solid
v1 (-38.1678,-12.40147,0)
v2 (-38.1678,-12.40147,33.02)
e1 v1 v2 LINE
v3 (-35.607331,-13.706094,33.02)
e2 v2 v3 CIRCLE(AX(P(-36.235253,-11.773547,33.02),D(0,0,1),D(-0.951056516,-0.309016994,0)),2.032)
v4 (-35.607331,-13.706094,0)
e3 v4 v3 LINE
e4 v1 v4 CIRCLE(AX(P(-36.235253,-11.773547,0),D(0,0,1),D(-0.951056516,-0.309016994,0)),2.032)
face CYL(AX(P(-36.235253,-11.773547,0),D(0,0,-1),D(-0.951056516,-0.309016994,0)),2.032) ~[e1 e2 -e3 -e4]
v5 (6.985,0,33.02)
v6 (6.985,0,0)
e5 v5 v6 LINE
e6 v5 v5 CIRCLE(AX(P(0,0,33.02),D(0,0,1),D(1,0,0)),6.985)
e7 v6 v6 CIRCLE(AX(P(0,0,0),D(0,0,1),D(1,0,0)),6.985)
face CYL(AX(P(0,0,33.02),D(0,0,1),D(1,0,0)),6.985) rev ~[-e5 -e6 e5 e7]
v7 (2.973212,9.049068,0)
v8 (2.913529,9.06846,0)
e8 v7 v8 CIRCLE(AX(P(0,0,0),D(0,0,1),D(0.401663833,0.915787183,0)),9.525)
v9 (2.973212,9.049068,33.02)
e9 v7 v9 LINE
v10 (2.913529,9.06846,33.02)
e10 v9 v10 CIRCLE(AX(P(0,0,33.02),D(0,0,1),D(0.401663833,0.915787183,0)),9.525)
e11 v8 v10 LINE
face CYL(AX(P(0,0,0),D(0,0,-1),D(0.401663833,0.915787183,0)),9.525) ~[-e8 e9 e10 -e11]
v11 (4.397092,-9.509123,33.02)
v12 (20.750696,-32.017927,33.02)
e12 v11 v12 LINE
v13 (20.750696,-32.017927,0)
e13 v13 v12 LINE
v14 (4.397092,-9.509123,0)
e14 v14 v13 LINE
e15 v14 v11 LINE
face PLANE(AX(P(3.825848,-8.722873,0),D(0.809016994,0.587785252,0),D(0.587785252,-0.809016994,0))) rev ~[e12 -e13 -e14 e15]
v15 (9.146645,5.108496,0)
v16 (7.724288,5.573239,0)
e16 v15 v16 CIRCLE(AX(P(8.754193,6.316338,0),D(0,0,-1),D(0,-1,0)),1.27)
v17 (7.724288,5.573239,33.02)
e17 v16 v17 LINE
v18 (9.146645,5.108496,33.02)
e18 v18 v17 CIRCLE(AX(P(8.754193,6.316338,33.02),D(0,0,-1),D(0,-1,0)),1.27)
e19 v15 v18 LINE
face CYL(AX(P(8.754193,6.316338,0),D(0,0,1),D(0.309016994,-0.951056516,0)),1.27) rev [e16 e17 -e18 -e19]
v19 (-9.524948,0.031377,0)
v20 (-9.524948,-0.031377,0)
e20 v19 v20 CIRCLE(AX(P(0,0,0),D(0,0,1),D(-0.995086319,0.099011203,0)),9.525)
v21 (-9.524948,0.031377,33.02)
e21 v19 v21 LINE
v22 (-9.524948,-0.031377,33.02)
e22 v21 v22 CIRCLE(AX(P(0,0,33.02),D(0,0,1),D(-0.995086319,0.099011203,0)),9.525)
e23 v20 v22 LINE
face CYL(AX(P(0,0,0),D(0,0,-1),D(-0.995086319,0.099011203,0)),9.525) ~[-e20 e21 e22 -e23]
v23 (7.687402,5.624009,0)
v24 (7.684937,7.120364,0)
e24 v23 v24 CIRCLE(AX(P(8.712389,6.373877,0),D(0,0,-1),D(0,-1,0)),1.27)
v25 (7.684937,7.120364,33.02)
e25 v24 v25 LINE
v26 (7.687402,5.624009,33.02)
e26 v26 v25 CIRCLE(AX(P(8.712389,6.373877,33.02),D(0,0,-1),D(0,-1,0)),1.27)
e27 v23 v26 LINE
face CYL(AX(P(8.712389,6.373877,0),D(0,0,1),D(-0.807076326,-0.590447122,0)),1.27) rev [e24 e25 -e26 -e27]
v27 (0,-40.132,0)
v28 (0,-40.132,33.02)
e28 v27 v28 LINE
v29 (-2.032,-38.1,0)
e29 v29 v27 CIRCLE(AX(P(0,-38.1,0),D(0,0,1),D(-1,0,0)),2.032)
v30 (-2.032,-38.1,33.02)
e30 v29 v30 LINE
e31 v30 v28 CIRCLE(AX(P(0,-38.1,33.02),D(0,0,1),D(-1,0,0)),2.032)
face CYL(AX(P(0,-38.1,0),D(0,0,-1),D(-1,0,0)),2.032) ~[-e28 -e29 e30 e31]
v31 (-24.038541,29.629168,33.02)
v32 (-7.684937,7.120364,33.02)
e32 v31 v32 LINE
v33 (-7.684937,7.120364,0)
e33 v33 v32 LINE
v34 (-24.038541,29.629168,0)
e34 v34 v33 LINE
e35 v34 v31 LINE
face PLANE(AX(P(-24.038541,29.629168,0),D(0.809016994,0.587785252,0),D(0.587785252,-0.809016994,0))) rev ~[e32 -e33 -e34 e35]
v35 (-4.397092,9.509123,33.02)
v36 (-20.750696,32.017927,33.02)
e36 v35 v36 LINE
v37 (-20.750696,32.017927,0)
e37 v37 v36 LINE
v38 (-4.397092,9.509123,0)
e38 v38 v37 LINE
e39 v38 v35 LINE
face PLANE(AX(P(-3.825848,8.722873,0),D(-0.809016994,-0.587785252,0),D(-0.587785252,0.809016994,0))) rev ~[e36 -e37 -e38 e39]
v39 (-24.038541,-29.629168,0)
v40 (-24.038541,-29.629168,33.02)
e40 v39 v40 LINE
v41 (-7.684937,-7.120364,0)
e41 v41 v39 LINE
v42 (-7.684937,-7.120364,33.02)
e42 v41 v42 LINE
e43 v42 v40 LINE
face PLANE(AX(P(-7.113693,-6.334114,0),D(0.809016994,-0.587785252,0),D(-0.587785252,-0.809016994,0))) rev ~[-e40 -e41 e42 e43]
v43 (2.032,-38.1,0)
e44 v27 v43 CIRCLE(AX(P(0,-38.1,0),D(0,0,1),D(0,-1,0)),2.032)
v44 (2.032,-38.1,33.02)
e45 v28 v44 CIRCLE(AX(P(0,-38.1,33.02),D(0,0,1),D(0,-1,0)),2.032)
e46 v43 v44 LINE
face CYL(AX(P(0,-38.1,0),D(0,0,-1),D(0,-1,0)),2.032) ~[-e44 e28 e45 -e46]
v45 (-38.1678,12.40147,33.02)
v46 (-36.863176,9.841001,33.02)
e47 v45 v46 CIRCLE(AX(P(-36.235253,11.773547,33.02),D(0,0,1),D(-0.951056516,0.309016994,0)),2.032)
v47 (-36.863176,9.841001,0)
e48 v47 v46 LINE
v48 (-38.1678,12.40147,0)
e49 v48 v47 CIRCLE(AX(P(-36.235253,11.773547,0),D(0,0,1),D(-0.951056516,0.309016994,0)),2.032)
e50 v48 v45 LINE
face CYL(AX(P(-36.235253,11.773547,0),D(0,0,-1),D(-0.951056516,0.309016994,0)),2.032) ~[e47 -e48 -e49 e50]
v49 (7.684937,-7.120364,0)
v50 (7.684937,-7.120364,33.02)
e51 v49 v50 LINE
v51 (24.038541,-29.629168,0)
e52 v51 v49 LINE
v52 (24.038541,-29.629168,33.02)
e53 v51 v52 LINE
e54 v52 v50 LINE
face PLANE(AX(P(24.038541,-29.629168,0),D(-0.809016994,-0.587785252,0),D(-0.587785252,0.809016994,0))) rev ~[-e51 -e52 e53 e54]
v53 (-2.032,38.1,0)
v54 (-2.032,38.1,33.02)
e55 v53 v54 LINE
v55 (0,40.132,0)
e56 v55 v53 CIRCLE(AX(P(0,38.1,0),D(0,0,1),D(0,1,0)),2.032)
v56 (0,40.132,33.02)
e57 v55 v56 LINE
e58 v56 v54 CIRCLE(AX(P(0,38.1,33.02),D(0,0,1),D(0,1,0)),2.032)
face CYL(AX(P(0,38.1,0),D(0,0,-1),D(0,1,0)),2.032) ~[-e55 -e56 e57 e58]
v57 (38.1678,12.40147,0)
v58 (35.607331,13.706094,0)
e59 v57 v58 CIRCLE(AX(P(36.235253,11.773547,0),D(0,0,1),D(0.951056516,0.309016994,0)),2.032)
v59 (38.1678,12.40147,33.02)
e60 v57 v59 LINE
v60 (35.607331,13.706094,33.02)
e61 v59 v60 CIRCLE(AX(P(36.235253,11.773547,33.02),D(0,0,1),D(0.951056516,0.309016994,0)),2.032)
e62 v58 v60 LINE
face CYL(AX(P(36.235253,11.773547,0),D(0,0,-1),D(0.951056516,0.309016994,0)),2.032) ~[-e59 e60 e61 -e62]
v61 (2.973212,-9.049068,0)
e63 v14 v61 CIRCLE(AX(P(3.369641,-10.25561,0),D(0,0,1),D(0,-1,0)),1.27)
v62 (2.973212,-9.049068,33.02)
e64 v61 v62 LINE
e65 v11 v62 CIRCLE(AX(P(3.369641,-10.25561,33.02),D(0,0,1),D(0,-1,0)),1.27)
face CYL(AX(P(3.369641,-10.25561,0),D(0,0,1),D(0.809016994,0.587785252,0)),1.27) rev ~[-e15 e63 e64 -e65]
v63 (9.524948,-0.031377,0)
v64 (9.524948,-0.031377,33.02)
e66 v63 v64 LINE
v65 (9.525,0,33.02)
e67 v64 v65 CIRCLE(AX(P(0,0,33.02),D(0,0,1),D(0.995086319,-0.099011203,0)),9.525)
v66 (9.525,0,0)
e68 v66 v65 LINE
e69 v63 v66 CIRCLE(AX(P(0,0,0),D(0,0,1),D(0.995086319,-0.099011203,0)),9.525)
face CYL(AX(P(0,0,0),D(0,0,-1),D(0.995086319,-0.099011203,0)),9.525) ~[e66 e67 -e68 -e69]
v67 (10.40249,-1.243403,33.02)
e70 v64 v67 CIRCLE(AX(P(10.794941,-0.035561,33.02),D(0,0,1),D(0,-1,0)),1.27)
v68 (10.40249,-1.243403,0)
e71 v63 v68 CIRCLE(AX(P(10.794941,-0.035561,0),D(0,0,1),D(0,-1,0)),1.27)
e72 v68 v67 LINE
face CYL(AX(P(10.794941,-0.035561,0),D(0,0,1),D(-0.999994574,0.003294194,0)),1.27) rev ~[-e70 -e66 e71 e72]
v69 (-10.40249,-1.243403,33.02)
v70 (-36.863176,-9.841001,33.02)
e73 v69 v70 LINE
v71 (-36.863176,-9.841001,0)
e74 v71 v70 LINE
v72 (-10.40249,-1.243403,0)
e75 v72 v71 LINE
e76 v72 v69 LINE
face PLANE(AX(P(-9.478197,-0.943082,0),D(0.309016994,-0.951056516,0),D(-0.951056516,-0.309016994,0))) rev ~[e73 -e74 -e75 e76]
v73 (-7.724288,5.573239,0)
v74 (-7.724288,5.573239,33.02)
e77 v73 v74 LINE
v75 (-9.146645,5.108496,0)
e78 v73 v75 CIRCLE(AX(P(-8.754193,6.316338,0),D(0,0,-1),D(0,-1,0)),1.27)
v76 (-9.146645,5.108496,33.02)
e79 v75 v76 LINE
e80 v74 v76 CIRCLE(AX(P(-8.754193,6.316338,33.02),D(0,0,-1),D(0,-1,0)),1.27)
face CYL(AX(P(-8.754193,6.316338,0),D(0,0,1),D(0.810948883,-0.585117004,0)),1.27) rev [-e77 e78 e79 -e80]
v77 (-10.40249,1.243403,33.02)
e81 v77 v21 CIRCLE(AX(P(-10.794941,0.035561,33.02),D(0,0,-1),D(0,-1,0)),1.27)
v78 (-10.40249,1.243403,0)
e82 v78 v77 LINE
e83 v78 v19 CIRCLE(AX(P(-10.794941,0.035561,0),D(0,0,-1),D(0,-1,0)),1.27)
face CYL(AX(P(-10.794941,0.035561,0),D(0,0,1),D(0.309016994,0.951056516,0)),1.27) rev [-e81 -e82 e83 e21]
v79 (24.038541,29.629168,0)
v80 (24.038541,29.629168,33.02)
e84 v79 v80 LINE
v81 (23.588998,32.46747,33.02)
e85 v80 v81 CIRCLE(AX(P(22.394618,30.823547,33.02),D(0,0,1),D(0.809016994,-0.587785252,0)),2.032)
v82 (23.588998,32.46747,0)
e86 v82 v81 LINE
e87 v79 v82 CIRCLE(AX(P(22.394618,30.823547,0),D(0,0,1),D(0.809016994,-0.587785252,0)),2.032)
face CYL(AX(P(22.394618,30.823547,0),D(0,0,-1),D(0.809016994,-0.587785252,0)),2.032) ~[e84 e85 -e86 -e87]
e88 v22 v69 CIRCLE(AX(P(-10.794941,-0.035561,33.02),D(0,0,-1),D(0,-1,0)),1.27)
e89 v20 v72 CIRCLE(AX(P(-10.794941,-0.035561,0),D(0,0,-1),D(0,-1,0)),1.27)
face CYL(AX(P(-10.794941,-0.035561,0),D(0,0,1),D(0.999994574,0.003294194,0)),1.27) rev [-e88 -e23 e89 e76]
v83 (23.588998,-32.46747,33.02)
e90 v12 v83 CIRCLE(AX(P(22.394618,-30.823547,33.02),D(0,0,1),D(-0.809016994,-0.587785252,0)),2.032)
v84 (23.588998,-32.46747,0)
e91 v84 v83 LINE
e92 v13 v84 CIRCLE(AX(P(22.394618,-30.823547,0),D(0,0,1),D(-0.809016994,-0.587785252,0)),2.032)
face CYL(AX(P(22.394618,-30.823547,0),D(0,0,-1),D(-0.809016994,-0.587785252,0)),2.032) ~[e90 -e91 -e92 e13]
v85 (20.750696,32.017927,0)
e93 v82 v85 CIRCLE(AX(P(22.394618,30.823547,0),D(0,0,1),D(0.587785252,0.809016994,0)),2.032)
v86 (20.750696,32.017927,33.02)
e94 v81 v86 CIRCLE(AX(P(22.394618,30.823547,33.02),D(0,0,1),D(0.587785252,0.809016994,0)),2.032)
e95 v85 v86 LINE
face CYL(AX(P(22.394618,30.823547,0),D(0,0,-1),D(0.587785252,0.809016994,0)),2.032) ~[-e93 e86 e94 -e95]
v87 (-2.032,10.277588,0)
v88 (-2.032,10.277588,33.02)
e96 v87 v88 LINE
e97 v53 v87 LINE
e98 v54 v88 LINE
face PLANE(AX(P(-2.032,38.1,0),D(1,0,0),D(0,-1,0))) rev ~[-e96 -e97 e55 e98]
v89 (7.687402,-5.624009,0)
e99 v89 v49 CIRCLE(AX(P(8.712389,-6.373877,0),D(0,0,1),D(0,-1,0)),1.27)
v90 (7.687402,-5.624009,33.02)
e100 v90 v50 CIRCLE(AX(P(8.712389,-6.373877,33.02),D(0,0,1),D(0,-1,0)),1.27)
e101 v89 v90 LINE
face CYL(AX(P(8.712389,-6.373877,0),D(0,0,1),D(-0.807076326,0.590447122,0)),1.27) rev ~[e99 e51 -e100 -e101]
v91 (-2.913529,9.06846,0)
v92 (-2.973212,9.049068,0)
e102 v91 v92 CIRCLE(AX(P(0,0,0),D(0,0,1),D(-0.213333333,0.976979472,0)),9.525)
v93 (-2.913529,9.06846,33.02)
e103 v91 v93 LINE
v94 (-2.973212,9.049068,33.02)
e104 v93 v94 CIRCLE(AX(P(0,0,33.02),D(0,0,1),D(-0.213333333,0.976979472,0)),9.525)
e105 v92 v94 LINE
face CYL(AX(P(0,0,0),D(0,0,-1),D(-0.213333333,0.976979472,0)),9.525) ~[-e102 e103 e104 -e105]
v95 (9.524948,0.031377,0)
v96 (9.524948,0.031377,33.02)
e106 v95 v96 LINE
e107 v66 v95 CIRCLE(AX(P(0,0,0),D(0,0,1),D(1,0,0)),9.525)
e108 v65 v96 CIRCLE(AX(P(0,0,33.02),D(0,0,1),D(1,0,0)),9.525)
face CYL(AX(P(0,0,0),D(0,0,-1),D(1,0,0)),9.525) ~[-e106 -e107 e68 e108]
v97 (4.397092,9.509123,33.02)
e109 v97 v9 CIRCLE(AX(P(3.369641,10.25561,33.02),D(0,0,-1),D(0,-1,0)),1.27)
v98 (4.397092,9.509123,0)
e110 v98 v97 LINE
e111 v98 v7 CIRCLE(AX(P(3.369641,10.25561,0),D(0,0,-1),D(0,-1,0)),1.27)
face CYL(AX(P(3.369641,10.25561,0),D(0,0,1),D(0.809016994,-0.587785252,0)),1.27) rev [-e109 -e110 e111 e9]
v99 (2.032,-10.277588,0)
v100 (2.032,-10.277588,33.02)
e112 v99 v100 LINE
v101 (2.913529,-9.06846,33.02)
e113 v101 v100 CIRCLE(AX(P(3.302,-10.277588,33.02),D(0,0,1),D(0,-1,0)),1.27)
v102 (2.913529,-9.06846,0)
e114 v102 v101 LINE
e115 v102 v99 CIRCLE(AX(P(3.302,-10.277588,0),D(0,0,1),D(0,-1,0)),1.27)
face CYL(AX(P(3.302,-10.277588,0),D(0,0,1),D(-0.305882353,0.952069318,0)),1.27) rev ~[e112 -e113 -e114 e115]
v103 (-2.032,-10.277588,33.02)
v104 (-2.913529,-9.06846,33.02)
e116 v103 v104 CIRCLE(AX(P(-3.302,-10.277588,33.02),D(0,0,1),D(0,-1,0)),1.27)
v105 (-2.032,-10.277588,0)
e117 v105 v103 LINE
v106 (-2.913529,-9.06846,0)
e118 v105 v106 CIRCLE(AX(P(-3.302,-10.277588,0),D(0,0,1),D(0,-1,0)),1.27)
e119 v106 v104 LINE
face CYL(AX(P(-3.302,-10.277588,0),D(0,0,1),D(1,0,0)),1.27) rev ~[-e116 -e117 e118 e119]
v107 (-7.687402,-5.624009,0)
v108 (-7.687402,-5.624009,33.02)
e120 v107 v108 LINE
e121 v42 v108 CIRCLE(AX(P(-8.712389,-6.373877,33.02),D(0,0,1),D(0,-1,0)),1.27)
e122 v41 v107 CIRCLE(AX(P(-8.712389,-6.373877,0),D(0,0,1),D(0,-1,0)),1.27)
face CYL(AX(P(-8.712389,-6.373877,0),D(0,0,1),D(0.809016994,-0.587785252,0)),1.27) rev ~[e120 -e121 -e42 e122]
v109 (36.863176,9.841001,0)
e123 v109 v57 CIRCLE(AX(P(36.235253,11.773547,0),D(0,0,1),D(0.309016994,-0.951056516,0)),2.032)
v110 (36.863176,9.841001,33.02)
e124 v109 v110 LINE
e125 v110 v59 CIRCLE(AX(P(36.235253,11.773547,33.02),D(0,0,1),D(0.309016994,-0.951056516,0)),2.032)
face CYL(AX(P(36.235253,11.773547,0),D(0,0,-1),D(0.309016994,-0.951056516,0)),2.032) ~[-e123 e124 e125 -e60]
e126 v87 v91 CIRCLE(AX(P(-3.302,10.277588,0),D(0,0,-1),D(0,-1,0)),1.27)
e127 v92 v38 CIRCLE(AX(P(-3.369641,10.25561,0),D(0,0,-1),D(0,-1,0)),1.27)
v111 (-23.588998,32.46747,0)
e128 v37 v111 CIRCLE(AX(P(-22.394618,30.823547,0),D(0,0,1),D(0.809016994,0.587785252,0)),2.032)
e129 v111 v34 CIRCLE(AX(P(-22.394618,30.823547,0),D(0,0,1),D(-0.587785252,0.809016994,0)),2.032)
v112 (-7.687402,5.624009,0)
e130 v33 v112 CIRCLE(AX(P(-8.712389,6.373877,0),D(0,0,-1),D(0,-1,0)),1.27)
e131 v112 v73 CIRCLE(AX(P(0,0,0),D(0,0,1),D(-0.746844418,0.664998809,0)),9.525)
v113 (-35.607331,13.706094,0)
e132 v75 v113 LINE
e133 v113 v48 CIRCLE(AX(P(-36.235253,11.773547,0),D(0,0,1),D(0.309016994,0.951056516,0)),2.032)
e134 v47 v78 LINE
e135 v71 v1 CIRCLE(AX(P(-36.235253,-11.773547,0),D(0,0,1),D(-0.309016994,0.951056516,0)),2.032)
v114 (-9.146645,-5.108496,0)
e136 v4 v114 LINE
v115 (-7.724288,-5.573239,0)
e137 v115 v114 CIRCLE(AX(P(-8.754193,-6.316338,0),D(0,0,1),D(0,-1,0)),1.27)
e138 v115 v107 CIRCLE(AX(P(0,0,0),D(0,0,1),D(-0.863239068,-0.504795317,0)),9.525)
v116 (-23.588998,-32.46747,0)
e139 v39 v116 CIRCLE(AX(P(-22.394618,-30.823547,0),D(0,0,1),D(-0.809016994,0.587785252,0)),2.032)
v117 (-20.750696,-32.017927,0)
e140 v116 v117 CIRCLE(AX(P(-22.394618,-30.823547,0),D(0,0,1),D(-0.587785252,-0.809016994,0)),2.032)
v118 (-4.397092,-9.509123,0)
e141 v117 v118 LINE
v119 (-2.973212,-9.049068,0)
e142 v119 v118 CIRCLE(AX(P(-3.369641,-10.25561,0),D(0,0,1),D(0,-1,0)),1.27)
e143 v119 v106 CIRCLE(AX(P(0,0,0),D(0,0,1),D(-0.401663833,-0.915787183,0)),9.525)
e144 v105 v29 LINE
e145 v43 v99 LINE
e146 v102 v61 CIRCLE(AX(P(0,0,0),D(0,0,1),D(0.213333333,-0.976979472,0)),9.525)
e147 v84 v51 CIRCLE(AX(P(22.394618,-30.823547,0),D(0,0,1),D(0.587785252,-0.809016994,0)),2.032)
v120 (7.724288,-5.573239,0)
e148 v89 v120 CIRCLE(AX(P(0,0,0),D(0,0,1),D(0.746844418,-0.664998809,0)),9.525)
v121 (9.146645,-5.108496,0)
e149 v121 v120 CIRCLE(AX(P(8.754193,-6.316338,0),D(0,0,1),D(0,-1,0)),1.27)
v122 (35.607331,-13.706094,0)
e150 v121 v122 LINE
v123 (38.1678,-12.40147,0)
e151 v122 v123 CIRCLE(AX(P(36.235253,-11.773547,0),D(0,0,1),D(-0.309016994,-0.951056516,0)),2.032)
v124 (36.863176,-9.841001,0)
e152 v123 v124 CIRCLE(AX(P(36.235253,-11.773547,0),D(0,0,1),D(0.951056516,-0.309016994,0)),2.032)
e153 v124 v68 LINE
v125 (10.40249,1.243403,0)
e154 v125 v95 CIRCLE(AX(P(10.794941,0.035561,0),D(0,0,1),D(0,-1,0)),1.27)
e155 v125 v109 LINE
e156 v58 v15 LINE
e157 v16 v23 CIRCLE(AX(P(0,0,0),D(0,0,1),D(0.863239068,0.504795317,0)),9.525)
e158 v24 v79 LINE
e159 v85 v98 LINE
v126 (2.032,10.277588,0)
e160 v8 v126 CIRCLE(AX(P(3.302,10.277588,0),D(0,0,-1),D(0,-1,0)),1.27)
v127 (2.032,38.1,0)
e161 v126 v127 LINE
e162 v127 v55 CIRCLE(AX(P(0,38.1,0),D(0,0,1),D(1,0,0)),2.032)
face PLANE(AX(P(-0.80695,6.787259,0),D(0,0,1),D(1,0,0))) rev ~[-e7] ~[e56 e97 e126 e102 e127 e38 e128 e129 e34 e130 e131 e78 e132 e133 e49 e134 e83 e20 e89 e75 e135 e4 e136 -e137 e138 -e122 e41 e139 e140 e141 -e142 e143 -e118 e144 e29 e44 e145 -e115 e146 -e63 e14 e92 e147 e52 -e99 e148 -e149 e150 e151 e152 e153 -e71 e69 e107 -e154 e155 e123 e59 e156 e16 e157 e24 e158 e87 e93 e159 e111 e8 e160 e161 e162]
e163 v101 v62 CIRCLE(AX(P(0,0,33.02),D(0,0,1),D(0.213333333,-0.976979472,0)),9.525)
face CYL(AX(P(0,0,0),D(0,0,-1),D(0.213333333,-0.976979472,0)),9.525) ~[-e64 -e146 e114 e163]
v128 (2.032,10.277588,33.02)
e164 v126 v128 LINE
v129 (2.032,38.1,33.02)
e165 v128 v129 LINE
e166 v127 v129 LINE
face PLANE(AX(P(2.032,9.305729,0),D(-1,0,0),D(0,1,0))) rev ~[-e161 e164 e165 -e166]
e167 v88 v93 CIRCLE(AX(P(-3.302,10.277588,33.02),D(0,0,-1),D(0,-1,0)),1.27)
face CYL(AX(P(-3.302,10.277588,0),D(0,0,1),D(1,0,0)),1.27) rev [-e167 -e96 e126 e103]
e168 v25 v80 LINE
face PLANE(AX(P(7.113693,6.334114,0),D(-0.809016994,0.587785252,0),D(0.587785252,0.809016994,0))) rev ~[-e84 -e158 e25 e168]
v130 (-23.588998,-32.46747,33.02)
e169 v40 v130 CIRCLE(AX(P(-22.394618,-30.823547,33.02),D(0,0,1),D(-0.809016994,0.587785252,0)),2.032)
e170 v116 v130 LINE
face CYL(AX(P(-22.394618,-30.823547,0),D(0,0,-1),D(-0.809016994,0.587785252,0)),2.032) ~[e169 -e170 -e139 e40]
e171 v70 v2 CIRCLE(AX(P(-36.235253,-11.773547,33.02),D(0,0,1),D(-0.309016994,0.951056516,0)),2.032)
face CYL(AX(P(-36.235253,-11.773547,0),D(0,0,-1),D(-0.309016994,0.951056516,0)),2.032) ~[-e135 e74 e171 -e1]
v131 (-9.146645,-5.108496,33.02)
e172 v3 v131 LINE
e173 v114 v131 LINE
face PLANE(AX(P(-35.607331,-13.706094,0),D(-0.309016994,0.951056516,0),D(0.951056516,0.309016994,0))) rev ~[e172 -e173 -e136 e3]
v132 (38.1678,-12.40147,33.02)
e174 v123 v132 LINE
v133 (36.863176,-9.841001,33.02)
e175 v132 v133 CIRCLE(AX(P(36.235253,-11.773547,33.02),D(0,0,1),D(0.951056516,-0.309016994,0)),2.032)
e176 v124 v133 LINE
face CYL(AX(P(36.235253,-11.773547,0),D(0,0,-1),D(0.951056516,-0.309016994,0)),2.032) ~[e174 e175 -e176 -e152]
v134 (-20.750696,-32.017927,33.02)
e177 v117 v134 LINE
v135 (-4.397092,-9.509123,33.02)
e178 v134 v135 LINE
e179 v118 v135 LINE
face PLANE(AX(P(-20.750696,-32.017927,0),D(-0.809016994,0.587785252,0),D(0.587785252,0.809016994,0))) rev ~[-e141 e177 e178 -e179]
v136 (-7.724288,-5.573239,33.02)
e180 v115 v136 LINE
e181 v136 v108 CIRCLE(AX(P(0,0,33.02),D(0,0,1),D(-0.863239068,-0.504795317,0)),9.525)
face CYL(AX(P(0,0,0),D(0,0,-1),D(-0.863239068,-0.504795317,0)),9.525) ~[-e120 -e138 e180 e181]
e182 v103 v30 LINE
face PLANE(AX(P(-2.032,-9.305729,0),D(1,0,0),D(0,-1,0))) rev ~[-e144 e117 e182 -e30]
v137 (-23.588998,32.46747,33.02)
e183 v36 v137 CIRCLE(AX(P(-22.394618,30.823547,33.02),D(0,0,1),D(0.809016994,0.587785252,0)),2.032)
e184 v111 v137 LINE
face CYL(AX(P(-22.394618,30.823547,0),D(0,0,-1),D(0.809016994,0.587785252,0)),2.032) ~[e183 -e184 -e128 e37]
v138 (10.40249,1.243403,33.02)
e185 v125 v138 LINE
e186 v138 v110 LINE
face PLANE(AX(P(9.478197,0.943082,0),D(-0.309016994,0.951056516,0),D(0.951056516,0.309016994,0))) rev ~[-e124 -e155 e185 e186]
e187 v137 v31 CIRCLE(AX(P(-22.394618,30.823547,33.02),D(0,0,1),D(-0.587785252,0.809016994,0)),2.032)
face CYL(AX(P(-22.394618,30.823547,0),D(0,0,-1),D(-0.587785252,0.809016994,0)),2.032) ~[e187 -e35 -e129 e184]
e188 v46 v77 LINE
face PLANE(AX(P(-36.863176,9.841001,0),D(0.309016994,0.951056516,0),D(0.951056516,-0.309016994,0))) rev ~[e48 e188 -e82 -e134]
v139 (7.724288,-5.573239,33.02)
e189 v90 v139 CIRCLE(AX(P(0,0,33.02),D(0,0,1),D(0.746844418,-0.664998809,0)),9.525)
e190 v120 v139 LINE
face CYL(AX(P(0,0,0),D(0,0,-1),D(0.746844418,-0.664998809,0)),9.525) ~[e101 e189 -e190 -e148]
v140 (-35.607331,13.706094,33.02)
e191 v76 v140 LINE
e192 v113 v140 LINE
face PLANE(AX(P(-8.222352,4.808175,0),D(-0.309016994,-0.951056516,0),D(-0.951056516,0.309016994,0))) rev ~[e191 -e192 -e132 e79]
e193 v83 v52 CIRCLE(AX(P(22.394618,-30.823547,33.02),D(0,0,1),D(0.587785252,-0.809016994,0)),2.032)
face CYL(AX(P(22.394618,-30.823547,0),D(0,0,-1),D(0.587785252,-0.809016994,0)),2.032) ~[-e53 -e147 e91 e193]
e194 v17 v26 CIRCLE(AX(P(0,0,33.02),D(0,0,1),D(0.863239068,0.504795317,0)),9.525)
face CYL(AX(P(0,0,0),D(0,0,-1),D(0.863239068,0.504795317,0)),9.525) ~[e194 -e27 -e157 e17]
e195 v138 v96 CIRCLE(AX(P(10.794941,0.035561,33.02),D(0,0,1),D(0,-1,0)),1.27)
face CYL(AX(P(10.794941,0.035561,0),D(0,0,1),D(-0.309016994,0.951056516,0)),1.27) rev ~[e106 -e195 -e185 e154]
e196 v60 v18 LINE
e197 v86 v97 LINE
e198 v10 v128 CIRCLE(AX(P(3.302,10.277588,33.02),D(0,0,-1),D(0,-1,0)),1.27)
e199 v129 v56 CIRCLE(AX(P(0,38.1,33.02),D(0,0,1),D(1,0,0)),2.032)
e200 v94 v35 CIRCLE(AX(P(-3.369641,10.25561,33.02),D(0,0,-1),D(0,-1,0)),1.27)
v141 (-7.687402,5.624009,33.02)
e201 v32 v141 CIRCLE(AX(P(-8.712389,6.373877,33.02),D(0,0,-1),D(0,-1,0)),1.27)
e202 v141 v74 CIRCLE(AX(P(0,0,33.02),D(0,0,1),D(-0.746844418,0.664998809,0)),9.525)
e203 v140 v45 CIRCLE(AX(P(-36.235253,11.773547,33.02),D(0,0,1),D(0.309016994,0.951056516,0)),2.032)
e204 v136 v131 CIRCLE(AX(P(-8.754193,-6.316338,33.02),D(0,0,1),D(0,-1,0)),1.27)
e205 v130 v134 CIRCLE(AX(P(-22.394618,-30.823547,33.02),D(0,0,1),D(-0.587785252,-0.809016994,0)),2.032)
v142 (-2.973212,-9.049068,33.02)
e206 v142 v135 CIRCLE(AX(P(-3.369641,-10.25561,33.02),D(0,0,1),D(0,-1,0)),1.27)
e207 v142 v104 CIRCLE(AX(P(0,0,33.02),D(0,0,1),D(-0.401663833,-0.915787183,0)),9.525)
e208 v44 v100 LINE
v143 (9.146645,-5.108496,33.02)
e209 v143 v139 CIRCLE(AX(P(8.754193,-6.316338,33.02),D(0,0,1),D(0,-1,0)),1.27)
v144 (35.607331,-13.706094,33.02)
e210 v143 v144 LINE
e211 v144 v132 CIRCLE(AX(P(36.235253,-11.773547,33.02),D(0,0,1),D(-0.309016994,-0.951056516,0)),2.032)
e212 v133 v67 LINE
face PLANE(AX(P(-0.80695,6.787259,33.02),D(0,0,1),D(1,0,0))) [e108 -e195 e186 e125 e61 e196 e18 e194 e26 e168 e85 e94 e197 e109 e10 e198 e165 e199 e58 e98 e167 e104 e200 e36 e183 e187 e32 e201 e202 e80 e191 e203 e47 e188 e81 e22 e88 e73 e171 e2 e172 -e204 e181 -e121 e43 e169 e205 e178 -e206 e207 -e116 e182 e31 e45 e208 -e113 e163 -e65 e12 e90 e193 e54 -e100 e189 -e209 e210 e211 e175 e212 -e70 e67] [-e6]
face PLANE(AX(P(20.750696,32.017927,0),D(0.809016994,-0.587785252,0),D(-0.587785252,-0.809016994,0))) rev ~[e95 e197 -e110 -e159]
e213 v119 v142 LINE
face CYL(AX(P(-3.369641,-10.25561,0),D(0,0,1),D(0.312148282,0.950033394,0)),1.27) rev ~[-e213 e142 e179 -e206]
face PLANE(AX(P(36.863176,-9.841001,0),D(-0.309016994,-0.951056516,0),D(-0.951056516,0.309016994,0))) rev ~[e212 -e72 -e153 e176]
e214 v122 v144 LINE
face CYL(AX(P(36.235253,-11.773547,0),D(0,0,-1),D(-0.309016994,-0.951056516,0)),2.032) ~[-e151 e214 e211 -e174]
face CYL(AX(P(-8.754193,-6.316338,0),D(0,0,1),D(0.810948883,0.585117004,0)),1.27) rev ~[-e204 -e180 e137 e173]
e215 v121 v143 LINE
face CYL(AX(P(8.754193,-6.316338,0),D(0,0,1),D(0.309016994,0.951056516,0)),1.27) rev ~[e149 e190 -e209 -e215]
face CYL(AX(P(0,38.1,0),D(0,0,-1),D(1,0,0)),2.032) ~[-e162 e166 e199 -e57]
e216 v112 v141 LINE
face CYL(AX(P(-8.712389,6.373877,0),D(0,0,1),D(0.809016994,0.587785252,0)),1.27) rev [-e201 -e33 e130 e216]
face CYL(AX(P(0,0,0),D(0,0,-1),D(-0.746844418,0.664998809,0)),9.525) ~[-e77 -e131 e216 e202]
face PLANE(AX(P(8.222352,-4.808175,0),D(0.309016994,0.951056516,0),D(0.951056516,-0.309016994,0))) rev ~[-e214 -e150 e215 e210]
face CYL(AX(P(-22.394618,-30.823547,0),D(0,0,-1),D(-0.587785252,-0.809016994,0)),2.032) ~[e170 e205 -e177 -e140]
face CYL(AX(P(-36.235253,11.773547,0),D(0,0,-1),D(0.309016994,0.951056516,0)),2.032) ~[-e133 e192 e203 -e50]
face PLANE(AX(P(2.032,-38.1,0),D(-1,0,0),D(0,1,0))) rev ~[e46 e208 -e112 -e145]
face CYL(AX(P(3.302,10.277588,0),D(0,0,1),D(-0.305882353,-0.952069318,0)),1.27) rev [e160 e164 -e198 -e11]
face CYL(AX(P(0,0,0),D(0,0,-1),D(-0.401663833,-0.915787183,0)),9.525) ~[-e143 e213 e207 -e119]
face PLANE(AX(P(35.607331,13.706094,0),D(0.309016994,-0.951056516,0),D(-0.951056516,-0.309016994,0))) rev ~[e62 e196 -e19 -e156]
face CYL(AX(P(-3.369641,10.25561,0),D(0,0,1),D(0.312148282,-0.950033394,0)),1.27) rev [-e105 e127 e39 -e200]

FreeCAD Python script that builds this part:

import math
import FreeCAD as App
import Part
import Sketcher

V = App.Vector
Q = App.Units.Quantity


def edges_at(feature, points):
    """Names of the edges that pass closest to the given points."""
    edges = feature.Shape.Edges
    near = lambda p: min(range(len(edges)), key=lambda i: edges[i].distToShape(Part.Vertex(*p))[0])
    return sorted({f"Edge{near(p) + 1}" for p in points})

doc = App.newDocument("Part")
body = doc.addObject("PartDesign::Body", "Body")

# Sketch on XY plane
sketch1 = body.newObject("Sketcher::SketchObject", "Sketch")
sketch1.AttachmentSupport = (doc.getObject("XY_Plane"), [""])
sketch1.MapMode = "FlatFace"
sketch1.addGeometry([
    Part.LineSegment(V(35.6, 13.7, 0), V(8.2, 4.8, 0)),  # 0
    Part.ArcOfCircle(Part.Circle(V(0, 0, 0), V(0, 0, 1), 9.5), math.radians(30.32), math.radians(41.68)),  # 1
    Part.LineSegment(V(7.1, 6.3, 0), V(24, 29.6, 0)),  # 2
    Part.ArcOfCircle(Part.Circle(V(22.4, 30.8, 0), V(0, 0, 1), 2), math.radians(-36), math.radians(54)),  # 3
    Part.ArcOfCircle(Part.Circle(V(22.4, 30.8, 0), V(0, 0, 1), 2), math.radians(54), math.radians(144)),  # 4
    Part.LineSegment(V(20.8, 32, 0), V(3.8, 8.7, 0)),  # 5
    Part.ArcOfCircle(Part.Circle(V(0, 0, 0), V(0, 0, 1), 9.5), math.radians(66.32), math.radians(77.68)),  # 6
    Part.LineSegment(V(2, 9.3, 0), V(2, 38.1, 0)),  # 7
    Part.ArcOfCircle(Part.Circle(V(0, 38.1, 0), V(0, 0, 1), 2), math.radians(0), math.radians(90)),  # 8
    Part.ArcOfCircle(Part.Circle(V(0, 38.1, 0), V(0, 0, 1), 2), math.radians(90), math.radians(180)),  # 9
    Part.LineSegment(V(-2, 38.1, 0), V(-2, 9.3, 0)),  # 10
    Part.ArcOfCircle(Part.Circle(V(0, 0, 0), V(0, 0, 1), 9.5), math.radians(102.32), math.radians(113.68)),  # 11
    Part.LineSegment(V(-3.8, 8.7, 0), V(-20.8, 32, 0)),  # 12
    Part.ArcOfCircle(Part.Circle(V(-22.4, 30.8, 0), V(0, 0, 1), 2), math.radians(36), math.radians(126)),  # 13
    Part.ArcOfCircle(Part.Circle(V(-22.4, 30.8, 0), V(0, 0, 1), 2), math.radians(126), math.radians(216)),  # 14
    Part.LineSegment(V(-24, 29.6, 0), V(-7.1, 6.3, 0)),  # 15
    Part.ArcOfCircle(Part.Circle(V(0, 0, 0), V(0, 0, 1), 9.5), math.radians(138.32), math.radians(149.68)),  # 16
    Part.LineSegment(V(-8.2, 4.8, 0), V(-35.6, 13.7, 0)),  # 17
    Part.ArcOfCircle(Part.Circle(V(-36.2, 11.8, 0), V(0, 0, 1), 2), math.radians(72), math.radians(162)),  # 18
    Part.ArcOfCircle(Part.Circle(V(-36.2, 11.8, 0), V(0, 0, 1), 2), math.radians(162), math.radians(252)),  # 19
    Part.LineSegment(V(-36.9, 9.8, 0), V(-9.5, 0.9, 0)),  # 20
    Part.ArcOfCircle(Part.Circle(V(0, 0, 0), V(0, 0, 1), 9.5), math.radians(174.32), math.radians(185.68)),  # 21
    Part.LineSegment(V(-9.5, -0.9, 0), V(-36.9, -9.8, 0)),  # 22
    Part.ArcOfCircle(Part.Circle(V(-36.2, -11.8, 0), V(0, 0, 1), 2), math.radians(108), math.radians(198)),  # 23
    Part.ArcOfCircle(Part.Circle(V(-36.2, -11.8, 0), V(0, 0, 1), 2), math.radians(-162), math.radians(-72)),  # 24
    Part.LineSegment(V(-35.6, -13.7, 0), V(-8.2, -4.8, 0)),  # 25
    Part.ArcOfCircle(Part.Circle(V(0, 0, 0), V(0, 0, 1), 9.5), math.radians(-149.68), math.radians(-138.32)),  # 26
    Part.LineSegment(V(-7.1, -6.3, 0), V(-24, -29.6, 0)),  # 27
    Part.ArcOfCircle(Part.Circle(V(-22.4, -30.8, 0), V(0, 0, 1), 2), math.radians(144), math.radians(234)),  # 28
    Part.ArcOfCircle(Part.Circle(V(-22.4, -30.8, 0), V(0, 0, 1), 2), math.radians(-126), math.radians(-36)),  # 29
    Part.LineSegment(V(-20.8, -32, 0), V(-3.8, -8.7, 0)),  # 30
    Part.ArcOfCircle(Part.Circle(V(0, 0, 0), V(0, 0, 1), 9.5), math.radians(-113.68), math.radians(-102.32)),  # 31
    Part.LineSegment(V(-2, -9.3, 0), V(-2, -38.1, 0)),  # 32
    Part.ArcOfCircle(Part.Circle(V(0, -38.1, 0), V(0, 0, 1), 2), math.radians(180), math.radians(270)),  # 33
    Part.ArcOfCircle(Part.Circle(V(0, -38.1, 0), V(0, 0, 1), 2), math.radians(-90), math.radians(0)),  # 34
    Part.LineSegment(V(2, -38.1, 0), V(2, -9.3, 0)),  # 35
    Part.ArcOfCircle(Part.Circle(V(0, 0, 0), V(0, 0, 1), 9.5), math.radians(-77.68), math.radians(-66.32)),  # 36
    Part.LineSegment(V(3.8, -8.7, 0), V(20.8, -32, 0)),  # 37
    Part.ArcOfCircle(Part.Circle(V(22.4, -30.8, 0), V(0, 0, 1), 2), math.radians(-144), math.radians(-54)),  # 38
    Part.ArcOfCircle(Part.Circle(V(22.4, -30.8, 0), V(0, 0, 1), 2), math.radians(-54), math.radians(36)),  # 39
    Part.LineSegment(V(24, -29.6, 0), V(7.1, -6.3, 0)),  # 40
    Part.ArcOfCircle(Part.Circle(V(0, 0, 0), V(0, 0, 1), 9.5), math.radians(-41.68), math.radians(-30.32)),  # 41
    Part.LineSegment(V(8.2, -4.8, 0), V(35.6, -13.7, 0)),  # 42
    Part.ArcOfCircle(Part.Circle(V(36.2, -11.8, 0), V(0, 0, 1), 2), math.radians(-108), math.radians(-18)),  # 43
    Part.ArcOfCircle(Part.Circle(V(36.2, -11.8, 0), V(0, 0, 1), 2), math.radians(-18), math.radians(72)),  # 44
    Part.LineSegment(V(36.9, -9.8, 0), V(9.5, -0.9, 0)),  # 45
    Part.ArcOfCircle(Part.Circle(V(0, 0, 0), V(0, 0, 1), 9.5), math.radians(-5.68), math.radians(0)),  # 46
    Part.ArcOfCircle(Part.Circle(V(0, 0, 0), V(0, 0, 1), 9.5), math.radians(0), math.radians(5.68)),  # 47
    Part.LineSegment(V(9.5, 0.9, 0), V(36.9, 9.8, 0)),  # 48
    Part.ArcOfCircle(Part.Circle(V(36.2, 11.8, 0), V(0, 0, 1), 2), math.radians(-72), math.radians(18)),  # 49
    Part.ArcOfCircle(Part.Circle(V(36.2, 11.8, 0), V(0, 0, 1), 2), math.radians(18), math.radians(108)),  # 50
    Part.LineSegment(V(2, 2.8, 0), V(5.3, 3.9, 0)),  # 51
    Part.LineSegment(V(5.3, 3.9, 0), V(3.3, 1.1, 0)),  # 52
    Part.LineSegment(V(3.3, 1.1, 0), V(6.6, 0, 0)),  # 53
    Part.LineSegment(V(6.6, 0, 0), V(3.3, -1.1, 0)),  # 54
    Part.LineSegment(V(3.3, -1.1, 0), V(5.3, -3.9, 0)),  # 55
    Part.LineSegment(V(5.3, -3.9, 0), V(2, -2.8, 0)),  # 56
    Part.LineSegment(V(2, -2.8, 0), V(2, -6.3, 0)),  # 57
    Part.LineSegment(V(2, -6.3, 0), V(0, -3.5, 0)),  # 58
    Part.LineSegment(V(0, -3.5, 0), V(-2, -6.3, 0)),  # 59
    Part.LineSegment(V(-2, -6.3, 0), V(-2, -2.8, 0)),  # 60
    Part.LineSegment(V(-2, -2.8, 0), V(-5.3, -3.9, 0)),  # 61
    Part.LineSegment(V(-5.3, -3.9, 0), V(-3.3, -1.1, 0)),  # 62
    Part.LineSegment(V(-3.3, -1.1, 0), V(-6.6, 0, 0)),  # 63
    Part.LineSegment(V(-6.6, 0, 0), V(-3.3, 1.1, 0)),  # 64
    Part.LineSegment(V(-3.3, 1.1, 0), V(-5.3, 3.9, 0)),  # 65
    Part.LineSegment(V(-5.3, 3.9, 0), V(-2, 2.8, 0)),  # 66
    Part.LineSegment(V(-2, 2.8, 0), V(-2, 6.3, 0)),  # 67
    Part.LineSegment(V(-2, 6.3, 0), V(0, 3.5, 0)),  # 68
    Part.LineSegment(V(0, 3.5, 0), V(2, 6.3, 0)),  # 69
    Part.LineSegment(V(2, 6.3, 0), V(2, 2.8, 0)),  # 70
], False)
sketch1.addConstraint([
    Sketcher.Constraint("Coincident", 0, 2, 1, 1),
    Sketcher.Constraint("Coincident", 1, 2, 2, 1),
    Sketcher.Constraint("Tangent", 2, 2, 3, 1),
    Sketcher.Constraint("Tangent", 3, 2, 4, 1),
    Sketcher.Constraint("Tangent", 4, 2, 5, 1),
    Sketcher.Constraint("Coincident", 5, 2, 6, 1),
    Sketcher.Constraint("Coincident", 6, 2, 7, 1),
    Sketcher.Constraint("Tangent", 7, 2, 8, 1),
    Sketcher.Constraint("Tangent", 8, 2, 9, 1),
    Sketcher.Constraint("Tangent", 9, 2, 10, 1),
    Sketcher.Constraint("Coincident", 10, 2, 11, 1),
    Sketcher.Constraint("Coincident", 11, 2, 12, 1),
    Sketcher.Constraint("Tangent", 12, 2, 13, 1),
    Sketcher.Constraint("Tangent", 13, 2, 14, 1),
    Sketcher.Constraint("Tangent", 14, 2, 15, 1),
    Sketcher.Constraint("Coincident", 15, 2, 16, 1),
    Sketcher.Constraint("Coincident", 16, 2, 17, 1),
    Sketcher.Constraint("Tangent", 17, 2, 18, 1),
    Sketcher.Constraint("Tangent", 18, 2, 19, 1),
    Sketcher.Constraint("Tangent", 19, 2, 20, 1),
    Sketcher.Constraint("Coincident", 20, 2, 21, 1),
    Sketcher.Constraint("Coincident", 21, 2, 22, 1),
    Sketcher.Constraint("Tangent", 22, 2, 23, 1),
    Sketcher.Constraint("Tangent", 23, 2, 24, 1),
    Sketcher.Constraint("Tangent", 24, 2, 25, 1),
    Sketcher.Constraint("Coincident", 25, 2, 26, 1),
    Sketcher.Constraint("Coincident", 26, 2, 27, 1),
    Sketcher.Constraint("Tangent", 27, 2, 28, 1),
    Sketcher.Constraint("Tangent", 28, 2, 29, 1),
    Sketcher.Constraint("Tangent", 29, 2, 30, 1),
    Sketcher.Constraint("Coincident", 30, 2, 31, 1),
    Sketcher.Constraint("Coincident", 31, 2, 32, 1),
    Sketcher.Constraint("Tangent", 32, 2, 33, 1),
    Sketcher.Constraint("Tangent", 33, 2, 34, 1),
    Sketcher.Constraint("Tangent", 34, 2, 35, 1),
    Sketcher.Constraint("Coincident", 35, 2, 36, 1),
    Sketcher.Constraint("Coincident", 36, 2, 37, 1),
    Sketcher.Constraint("Tangent", 37, 2, 38, 1),
    Sketcher.Constraint("Tangent", 38, 2, 39, 1),
    Sketcher.Constraint("Tangent", 39, 2, 40, 1),
    Sketcher.Constraint("Coincident", 40, 2, 41, 1),
    Sketcher.Constraint("Coincident", 41, 2, 42, 1),
    Sketcher.Constraint("Tangent", 42, 2, 43, 1),
    Sketcher.Constraint("Tangent", 43, 2, 44, 1),
    Sketcher.Constraint("Tangent", 44, 2, 45, 1),
    Sketcher.Constraint("Coincident", 45, 2, 46, 1),
    Sketcher.Constraint("Tangent", 46, 2, 47, 1),
    Sketcher.Constraint("Coincident", 47, 2, 48, 1),
    Sketcher.Constraint("Tangent", 48, 2, 49, 1),
    Sketcher.Constraint("Tangent", 49, 2, 50, 1),
    Sketcher.Constraint("Tangent", 50, 2, 0, 1),
    Sketcher.Constraint("Coincident", 51, 2, 52, 1),
    Sketcher.Constraint("Coincident", 52, 2, 53, 1),
    Sketcher.Constraint("Coincident", 53, 2, 54, 1),
    Sketcher.Constraint("Coincident", 54, 2, 55, 1),
    Sketcher.Constraint("Coincident", 55, 2, 56, 1),
    Sketcher.Constraint("Coincident", 56, 2, 57, 1),
    Sketcher.Constraint("Coincident", 57, 2, 58, 1),
    Sketcher.Constraint("Coincident", 58, 2, 59, 1),
    Sketcher.Constraint("Coincident", 59, 2, 60, 1),
    Sketcher.Constraint("Coincident", 60, 2, 61, 1),
    Sketcher.Constraint("Coincident", 61, 2, 62, 1),
    Sketcher.Constraint("Coincident", 62, 2, 63, 1),
    Sketcher.Constraint("Coincident", 63, 2, 64, 1),
    Sketcher.Constraint("Coincident", 64, 2, 65, 1),
    Sketcher.Constraint("Coincident", 65, 2, 66, 1),
    Sketcher.Constraint("Coincident", 66, 2, 67, 1),
    Sketcher.Constraint("Coincident", 67, 2, 68, 1),
    Sketcher.Constraint("Coincident", 68, 2, 69, 1),
    Sketcher.Constraint("Coincident", 69, 2, 70, 1),
    Sketcher.Constraint("Coincident", 70, 2, 51, 1),
    Sketcher.Constraint("Vertical", 7),
    Sketcher.Constraint("Vertical", 10),
    Sketcher.Constraint("Vertical", 32),
    Sketcher.Constraint("Vertical", 35),
    Sketcher.Constraint("Vertical", 57),
    Sketcher.Constraint("Vertical", 60),
    Sketcher.Constraint("Vertical", 67),
    Sketcher.Constraint("Vertical", 70),
    Sketcher.Constraint("Coincident", 1, 3, -1, 1),
    Sketcher.Constraint("Coincident", 6, 3, -1, 1),
    Sketcher.Constraint("Coincident", 11, 3, -1, 1),
    Sketcher.Constraint("Coincident", 16, 3, -1, 1),
    Sketcher.Constraint("Coincident", 21, 3, -1, 1),
    Sketcher.Constraint("Coincident", 26, 3, -1, 1),
    Sketcher.Constraint("Coincident", 31, 3, -1, 1),
    Sketcher.Constraint("Coincident", 36, 3, -1, 1),
    Sketcher.Constraint("Coincident", 41, 3, -1, 1),
    Sketcher.Constraint("Coincident", 46, 3, -1, 1),
    Sketcher.Constraint("Equal", 3, 4),
    Sketcher.Constraint("Equal", 1, 6),
    Sketcher.Constraint("Equal", 4, 8),
    Sketcher.Constraint("Equal", 8, 9),
    Sketcher.Constraint("Equal", 6, 11),
    Sketcher.Constraint("Equal", 9, 13),
    Sketcher.Constraint("Equal", 13, 14),
    Sketcher.Constraint("Equal", 11, 16),
    Sketcher.Constraint("Equal", 14, 18),
    Sketcher.Constraint("Equal", 18, 19),
    Sketcher.Constraint("Equal", 16, 21),
    Sketcher.Constraint("Equal", 19, 23),
    Sketcher.Constraint("Equal", 23, 24),
    Sketcher.Constraint("Equal", 21, 26),
    Sketcher.Constraint("Equal", 24, 28),
    Sketcher.Constraint("Equal", 28, 29),
    Sketcher.Constraint("Equal", 26, 31),
    Sketcher.Constraint("Equal", 29, 33),
    Sketcher.Constraint("Equal", 33, 34),
    Sketcher.Constraint("Equal", 31, 36),
    Sketcher.Constraint("Equal", 34, 38),
    Sketcher.Constraint("Equal", 38, 39),
    Sketcher.Constraint("Equal", 36, 41),
    Sketcher.Constraint("Equal", 39, 43),
    Sketcher.Constraint("Equal", 43, 44),
    Sketcher.Constraint("Equal", 41, 46),
    Sketcher.Constraint("Equal", 46, 47),
    Sketcher.Constraint("Equal", 44, 49),
    Sketcher.Constraint("Equal", 49, 50),
    Sketcher.Constraint("Symmetric", 3, 3, 28, 3, -1, 1),
    Sketcher.Constraint("Symmetric", 8, 3, 33, 3, -1, 1),
    Sketcher.Constraint("Symmetric", 13, 3, 38, 3, -1, 1),
    Sketcher.Constraint("Symmetric", 18, 3, 43, 3, -1, 1),
    Sketcher.Constraint("Symmetric", 23, 3, 49, 3, -1, 1),
    Sketcher.Constraint("Symmetric", 51, 2, 61, 2, -1, 1),
    Sketcher.Constraint("Symmetric", 52, 2, 62, 2, -1, 1),
    Sketcher.Constraint("Symmetric", 53, 2, 63, 2, -1, 1),
    Sketcher.Constraint("Symmetric", 54, 2, 64, 2, -1, 1),
    Sketcher.Constraint("Symmetric", 55, 2, 65, 2, -1, 1),
    Sketcher.Constraint("Symmetric", 56, 2, 66, 2, -1, 1),
    Sketcher.Constraint("Symmetric", 58, 2, 68, 2, -1, 1),
    Sketcher.Constraint("Symmetric", 59, 2, 69, 2, -1, 1),
    Sketcher.Constraint("Symmetric", 3, 3, 13, 3, -2),
    Sketcher.Constraint("Symmetric", 23, 3, 43, 3, -2),
    Sketcher.Constraint("Symmetric", 57, 2, 59, 2, -2),
    Sketcher.Constraint("Symmetric", 55, 2, 61, 2, -2),
    Sketcher.Constraint("Symmetric", 54, 2, 62, 2, -2),
    Sketcher.Constraint("PointOnObject", 8, 3, -2),
    Sketcher.Constraint("PointOnObject", 8, 2, -2),
    Sketcher.Constraint("PointOnObject", 33, 2, -2),
    Sketcher.Constraint("PointOnObject", 46, 2, -1),
    Sketcher.Constraint("PointOnObject", 53, 2, -1),
    Sketcher.Constraint("PointOnObject", 58, 2, -2),
    Sketcher.Constraint("Parallel", 2, 5),
    Sketcher.Constraint("Parallel", 12, 15),
    Sketcher.Constraint("Parallel", 17, 20),
    Sketcher.Constraint("Parallel", 0, 22),
    Sketcher.Constraint("Parallel", 22, 25),
    Sketcher.Constraint("Parallel", 5, 27),
    Sketcher.Constraint("Parallel", 27, 30),
    Sketcher.Constraint("Parallel", 15, 37),
    Sketcher.Constraint("Parallel", 37, 40),
    Sketcher.Constraint("Parallel", 20, 42),
    Sketcher.Constraint("Parallel", 42, 45),
    Sketcher.Constraint("Parallel", 25, 48),
    Sketcher.Constraint("Parallel", 48, 51),
    Sketcher.Constraint("Parallel", 30, 52),
    Sketcher.Constraint("Parallel", 45, 53),
    Sketcher.Constraint("Parallel", 51, 54),
    Sketcher.Constraint("Parallel", 40, 55),
    Sketcher.Constraint("Parallel", 53, 56),
    Sketcher.Constraint("Parallel", 55, 58),
    Sketcher.Constraint("Parallel", 54, 61),
    Sketcher.Constraint("Parallel", 65, 68),
    Sketcher.Constraint("Horizontal", 3, 2, 13, 2),
    Sketcher.Constraint("Horizontal", 28, 2, 38, 2),
    Sketcher.Constraint("Horizontal", 23, 2, 43, 2),
    Sketcher.Constraint("Horizontal", 18, 2, 49, 2),
    Sketcher.Constraint("Vertical", 18, 2, 23, 2),
    Sketcher.Constraint("Vertical", 13, 2, 28, 2),
    Sketcher.Constraint("Vertical", 35, 2, 56, 2),
    Sketcher.Constraint("Equal", 0, 2),
    Sketcher.Constraint("Equal", 2, 5),
    Sketcher.Constraint("Equal", 17, 20),
    Sketcher.Constraint("Equal", 51, 52),
    Sketcher.Constraint("Equal", 52, 53),
    Sketcher.Constraint("Equal", 56, 58),
    Sketcher.Constraint("Radius", 3, Q("0.08 in")),
    Sketcher.Constraint("Angle", 0, Q("-162 deg")),
    Sketcher.Constraint("Angle", 2, Q("54 deg")),
    Sketcher.Constraint("Radius", 1, Q("0.375 in")),
    Sketcher.Constraint("DistanceY", -1, 1, 8, 3, Q("1.5 in")),
    Sketcher.Constraint("DistanceX", 18, 2, -1, 1, Q("38.1678 mm")),
    Sketcher.Constraint("DistanceY", -1, 1, 19, 2, Q("9.841001 mm")),
    Sketcher.Constraint("DistanceY", 57, 2, 57, 1, Q("3.457045 mm")),
    Sketcher.Constraint("DistanceY", -1, 1, 3, 2, Q("32.46747 mm")),
])
pad1 = body.newObject("PartDesign::Pad", "Pad")
pad1.Profile = sketch1
pad1.Length = Q("1.3 in")

# Sketch on XY plane
sketch2 = body.newObject("Sketcher::SketchObject", "Sketch001")
sketch2.AttachmentSupport = (doc.getObject("XY_Plane"), [""])
sketch2.MapMode = "FlatFace"
sketch2.AttachmentOffset = App.Placement(V(0, 0, 1.3 * 25.4), App.Rotation())
sketch2.addGeometry(Part.Circle(V(0, 0, 0), V(0, 0, 1), 7), False)
sketch2.addConstraint([
    Sketcher.Constraint("Coincident", 0, 3, -1, 1),
    Sketcher.Constraint("Diameter", 0, Q("0.55 in")),
])
pocket1 = body.newObject("PartDesign::Pocket", "Pocket")
pocket1.Profile = sketch2
pocket1.Type = "ThroughAll"
doc.recompute()

fillet = body.newObject("PartDesign::Fillet", "Fillet")
fillet.Base = (pocket1, edges_at(pocket1, [
    (8.222, -4.808, 16.51),
    (7.114, -6.334, 16.51),
    (3.826, -8.723, 16.51),
    (2.032, -9.306, 16.51),
    (-2.032, -9.306, 16.51),
    (-3.826, -8.723, 16.51),
    (-7.114, -6.334, 16.51),
    (-8.222, -4.808, 16.51),
    (-9.478, -0.943, 16.51),
    (-9.478, 0.943, 16.51),
    (-8.222, 4.808, 16.51),
    (-7.114, 6.334, 16.51),
    (-3.826, 8.723, 16.51),
    (-2.032, 9.306, 16.51),
    (2.032, 9.306, 16.51),
    (3.826, 8.723, 16.51),
    (8.222, 4.808, 16.51),
    (7.114, 6.334, 16.51),
    (9.478, -0.943, 16.51),
    (9.478, 0.943, 16.51),
]))
fillet.Radius = Q("0.05 in")

doc.recompute()
